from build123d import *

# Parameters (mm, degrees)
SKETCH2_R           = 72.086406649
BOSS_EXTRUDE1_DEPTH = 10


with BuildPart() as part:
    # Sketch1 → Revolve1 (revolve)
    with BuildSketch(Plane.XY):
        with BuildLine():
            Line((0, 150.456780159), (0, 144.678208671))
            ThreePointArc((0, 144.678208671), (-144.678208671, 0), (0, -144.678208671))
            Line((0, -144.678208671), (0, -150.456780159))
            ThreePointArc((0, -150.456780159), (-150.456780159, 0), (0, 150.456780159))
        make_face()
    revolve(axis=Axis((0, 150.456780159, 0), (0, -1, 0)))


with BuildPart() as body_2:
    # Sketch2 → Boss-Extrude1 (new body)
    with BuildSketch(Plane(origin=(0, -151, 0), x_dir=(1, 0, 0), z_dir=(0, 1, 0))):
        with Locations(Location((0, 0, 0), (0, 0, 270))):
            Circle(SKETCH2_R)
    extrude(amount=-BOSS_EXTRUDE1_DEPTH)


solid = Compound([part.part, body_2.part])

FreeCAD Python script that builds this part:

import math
import FreeCAD as App
import Part
import Sketcher

V = App.Vector
Q = App.Units.Quantity

doc = App.newDocument("Part")
body = doc.addObject("PartDesign::Body", "Body")

# Sketch on XY plane
sketch1 = body.newObject("Sketcher::SketchObject", "Sketch")
sketch1.AttachmentSupport = (doc.getObject("XY_Plane"), [""])
sketch1.MapMode = "FlatFace"
sketch1.addGeometry([
    Part.LineSegment(V(0, 145, 0), V(0, 150, 0)),
    Part.ArcOfCircle(Part.Circle(V(0, 0, 0), V(0, 0, 1), 150), math.radians(90), math.radians(270)),
    Part.LineSegment(V(0, -150, 0), V(0, -145, 0)),
    Part.ArcOfCircle(Part.Circle(V(0, 0, 0), V(0, 0, 1), 145), math.radians(90), math.radians(270)),
], False)
sketch1.addConstraint([
    Sketcher.Constraint("Coincident", 0, 2, 1, 1),
    Sketcher.Constraint("Coincident", 1, 2, 2, 1),
    Sketcher.Constraint("Coincident", 2, 2, 3, 2),
    Sketcher.Constraint("Coincident", 3, 1, 0, 1),
    Sketcher.Constraint("Vertical", 0),
    Sketcher.Constraint("Vertical", 2),
    Sketcher.Constraint("Coincident", 1, 3, -1, 1),
    Sketcher.Constraint("Coincident", 3, 3, -1, 1),
    Sketcher.Constraint("PointOnObject", 0, 2, -2),
    Sketcher.Constraint("PointOnObject", 1, 2, -2),
    Sketcher.Constraint("Radius", 1, Q("150.45678 mm")),
    Sketcher.Constraint("Radius", 3, Q("144.678209 mm")),
])
revolution = body.newObject("PartDesign::Revolution", "Revolution")
revolution.Profile = sketch1
revolution.ReferenceAxis = (sketch1, ["V_Axis"])
revolution.Angle = 360
body2 = doc.addObject("PartDesign::Body", "Body001")

# Sketch on XZ plane
sketch2 = body2.newObject("Sketcher::SketchObject", "Sketch001")
sketch2.AttachmentSupport = (doc.getObject("XZ_Plane001"), [""])
sketch2.MapMode = "FlatFace"
sketch2.AttachmentOffset = App.Placement(V(0, 0, 151), App.Rotation())
sketch2.addGeometry(Part.Circle(V(0, 0, 0), V(0, 0, 1), 72), False)
sketch2.addConstraint([
    Sketcher.Constraint("Coincident", 0, 3, -1, 1),
    Sketcher.Constraint("Diameter", 0, Q("144.172813 mm")),
])
pad1 = body2.newObject("PartDesign::Pad", "Pad")
pad1.Profile = sketch2
pad1.Length = 10

doc.recompute()
